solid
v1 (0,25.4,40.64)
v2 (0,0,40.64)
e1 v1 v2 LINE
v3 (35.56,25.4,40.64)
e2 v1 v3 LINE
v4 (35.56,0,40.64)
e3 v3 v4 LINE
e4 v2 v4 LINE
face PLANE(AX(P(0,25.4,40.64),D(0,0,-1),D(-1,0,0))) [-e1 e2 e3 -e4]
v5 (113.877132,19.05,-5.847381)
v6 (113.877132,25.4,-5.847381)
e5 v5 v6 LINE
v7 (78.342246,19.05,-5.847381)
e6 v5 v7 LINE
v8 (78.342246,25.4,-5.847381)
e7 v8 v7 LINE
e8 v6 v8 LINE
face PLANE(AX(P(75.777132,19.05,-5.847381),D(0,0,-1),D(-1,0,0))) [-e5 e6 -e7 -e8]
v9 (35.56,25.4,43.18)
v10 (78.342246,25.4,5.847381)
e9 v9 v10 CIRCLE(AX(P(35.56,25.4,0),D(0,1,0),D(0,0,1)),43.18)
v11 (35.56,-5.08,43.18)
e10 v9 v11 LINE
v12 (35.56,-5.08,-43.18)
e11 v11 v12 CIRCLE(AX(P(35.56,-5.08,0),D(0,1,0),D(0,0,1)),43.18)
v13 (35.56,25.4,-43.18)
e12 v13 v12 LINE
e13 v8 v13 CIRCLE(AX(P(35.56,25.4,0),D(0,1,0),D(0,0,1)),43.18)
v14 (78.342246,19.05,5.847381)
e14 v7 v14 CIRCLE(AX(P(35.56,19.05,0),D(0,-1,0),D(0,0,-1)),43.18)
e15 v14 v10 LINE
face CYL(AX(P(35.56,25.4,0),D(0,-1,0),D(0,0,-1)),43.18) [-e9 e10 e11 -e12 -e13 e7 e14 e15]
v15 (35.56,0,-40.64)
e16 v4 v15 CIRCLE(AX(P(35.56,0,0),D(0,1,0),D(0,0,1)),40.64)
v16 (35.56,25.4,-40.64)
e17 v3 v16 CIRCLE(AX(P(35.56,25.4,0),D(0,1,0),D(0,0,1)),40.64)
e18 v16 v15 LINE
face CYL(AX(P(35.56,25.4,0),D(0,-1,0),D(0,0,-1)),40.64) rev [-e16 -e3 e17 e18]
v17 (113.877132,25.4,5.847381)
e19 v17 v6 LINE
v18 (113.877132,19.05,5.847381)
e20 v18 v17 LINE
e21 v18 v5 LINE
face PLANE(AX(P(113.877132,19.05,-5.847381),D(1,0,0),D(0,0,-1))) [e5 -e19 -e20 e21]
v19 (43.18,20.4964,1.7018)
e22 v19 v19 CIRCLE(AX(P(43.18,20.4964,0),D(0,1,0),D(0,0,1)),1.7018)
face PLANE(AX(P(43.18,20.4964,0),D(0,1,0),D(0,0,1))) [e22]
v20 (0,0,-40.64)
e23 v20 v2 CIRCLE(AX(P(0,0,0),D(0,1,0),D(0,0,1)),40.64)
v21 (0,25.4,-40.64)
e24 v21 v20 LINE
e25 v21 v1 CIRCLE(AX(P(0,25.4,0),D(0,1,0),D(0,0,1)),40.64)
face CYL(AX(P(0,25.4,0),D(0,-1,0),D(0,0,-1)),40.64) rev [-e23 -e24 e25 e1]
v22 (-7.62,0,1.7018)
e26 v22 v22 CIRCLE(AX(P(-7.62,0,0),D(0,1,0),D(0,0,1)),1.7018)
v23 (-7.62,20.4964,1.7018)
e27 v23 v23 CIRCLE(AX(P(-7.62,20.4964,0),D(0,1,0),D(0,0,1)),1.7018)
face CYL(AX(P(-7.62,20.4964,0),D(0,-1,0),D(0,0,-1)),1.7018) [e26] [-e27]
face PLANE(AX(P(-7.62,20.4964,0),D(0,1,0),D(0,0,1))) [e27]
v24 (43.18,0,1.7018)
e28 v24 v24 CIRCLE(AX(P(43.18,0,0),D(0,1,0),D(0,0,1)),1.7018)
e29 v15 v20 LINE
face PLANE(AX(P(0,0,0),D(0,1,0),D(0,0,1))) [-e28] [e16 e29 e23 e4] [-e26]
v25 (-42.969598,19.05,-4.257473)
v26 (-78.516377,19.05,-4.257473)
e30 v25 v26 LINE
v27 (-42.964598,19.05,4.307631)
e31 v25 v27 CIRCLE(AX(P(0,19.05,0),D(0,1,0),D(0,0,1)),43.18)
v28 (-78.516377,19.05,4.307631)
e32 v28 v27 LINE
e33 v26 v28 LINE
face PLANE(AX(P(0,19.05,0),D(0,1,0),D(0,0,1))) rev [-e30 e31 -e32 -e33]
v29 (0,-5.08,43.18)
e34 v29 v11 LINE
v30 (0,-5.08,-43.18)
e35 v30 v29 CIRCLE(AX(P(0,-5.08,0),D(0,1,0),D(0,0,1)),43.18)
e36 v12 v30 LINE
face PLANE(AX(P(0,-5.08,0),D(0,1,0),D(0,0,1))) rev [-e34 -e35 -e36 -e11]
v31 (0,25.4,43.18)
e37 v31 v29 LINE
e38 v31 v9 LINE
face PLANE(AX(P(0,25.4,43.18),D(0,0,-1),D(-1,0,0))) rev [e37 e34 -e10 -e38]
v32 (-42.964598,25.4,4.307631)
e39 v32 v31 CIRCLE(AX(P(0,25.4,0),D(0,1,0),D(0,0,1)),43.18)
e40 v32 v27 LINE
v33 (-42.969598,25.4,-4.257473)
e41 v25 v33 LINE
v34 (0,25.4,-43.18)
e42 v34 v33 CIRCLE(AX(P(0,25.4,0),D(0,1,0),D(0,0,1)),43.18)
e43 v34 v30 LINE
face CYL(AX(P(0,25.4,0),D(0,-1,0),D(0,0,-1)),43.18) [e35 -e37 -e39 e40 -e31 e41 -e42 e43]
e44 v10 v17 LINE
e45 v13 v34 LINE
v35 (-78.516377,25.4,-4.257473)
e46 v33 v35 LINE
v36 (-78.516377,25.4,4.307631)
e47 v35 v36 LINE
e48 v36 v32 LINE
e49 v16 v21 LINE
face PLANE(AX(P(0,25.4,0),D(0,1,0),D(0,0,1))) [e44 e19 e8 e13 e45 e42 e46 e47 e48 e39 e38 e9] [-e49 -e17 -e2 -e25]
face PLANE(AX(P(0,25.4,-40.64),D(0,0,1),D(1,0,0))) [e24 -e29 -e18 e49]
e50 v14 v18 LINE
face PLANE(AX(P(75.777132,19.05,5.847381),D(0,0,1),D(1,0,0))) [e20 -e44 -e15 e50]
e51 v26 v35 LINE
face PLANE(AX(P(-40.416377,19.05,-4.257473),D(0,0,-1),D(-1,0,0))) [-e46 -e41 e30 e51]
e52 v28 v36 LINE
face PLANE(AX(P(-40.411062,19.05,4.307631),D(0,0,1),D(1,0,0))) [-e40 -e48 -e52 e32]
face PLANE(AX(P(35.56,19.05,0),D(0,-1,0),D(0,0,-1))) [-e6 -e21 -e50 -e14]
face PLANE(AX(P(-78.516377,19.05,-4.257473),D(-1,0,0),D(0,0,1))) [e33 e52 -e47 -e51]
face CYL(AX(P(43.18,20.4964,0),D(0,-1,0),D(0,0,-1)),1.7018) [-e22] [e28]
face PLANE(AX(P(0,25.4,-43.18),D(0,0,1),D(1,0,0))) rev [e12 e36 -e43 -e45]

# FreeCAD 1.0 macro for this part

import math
import FreeCAD as App
import Part
import Sketcher
from FreeCAD import Vector
Q = App.Units.Quantity

doc = App.newDocument("Part")
params = doc.addObject("Spreadsheet::Sheet", "Params")
for row, (alias, value) in enumerate([
    ("sketch1_radius", "1.7 in"),
    ("sketch1_radius2", "1.6 in"),
    ("sketch1_width", "1.4 in"),
    ("pad1_length", "1 in"),
    ("sketch2_radius", "1.7 in"),
    ("sketch2_width", "1.4 in"),
    ("pad2_length", "0.2 in"),
    ("sketch3_diameter", "0.134 in"),
    ("pad3_length", "20.4964 mm"),
    ("sketch4_radius", "1.6 in"),
    ("sketch4_width", "1.5 in"),
    ("pad4_length", "0.25 in"),
], start=1):
    params.set(f"A{row}", alias)
    params.set(f"B{row}", "=" + value)
    params.setAlias(f"B{row}", alias)

body = doc.addObject("PartDesign::Body", "Body")

# Sketch on XZ plane
sketch1 = body.newObject("Sketcher::SketchObject", "Sketch")
sketch1.AttachmentSupport = (doc.getObject("XZ_Plane"), [""])
sketch1.MapMode = "FlatFace"
sketch1.addGeometry(Part.LineSegment(Vector(36, -43, 0), Vector(0, -43, 0)), False)
sketch1.addGeometry(Part.ArcOfCircle(Part.Circle(Vector(0, 0, 0), Vector(0, 0, 1), 43), math.radians(90), math.radians(270)), False)
sketch1.addGeometry(Part.LineSegment(Vector(0, 43, 0), Vector(36, 43, 0)), False)
sketch1.addGeometry(Part.ArcOfCircle(Part.Circle(Vector(36, 0, 0), Vector(0, 0, 1), 43), math.radians(-90), math.radians(90)), False)
sketch1.addGeometry(Part.LineSegment(Vector(0, -41, 0), Vector(36, -41, 0)), False)
sketch1.addGeometry(Part.ArcOfCircle(Part.Circle(Vector(36, 0, 0), Vector(0, 0, 1), 41), math.radians(-90), math.radians(90)), False)
sketch1.addGeometry(Part.LineSegment(Vector(36, 41, 0), Vector(0, 41, 0)), False)
sketch1.addGeometry(Part.ArcOfCircle(Part.Circle(Vector(0, 0, 0), Vector(0, 0, 1), 41), math.radians(90), math.radians(270)), False)
sketch1.addConstraint(Sketcher.Constraint("Tangent", 0, 2, 1, 2))
sketch1.addConstraint(Sketcher.Constraint("Tangent", 1, 1, 2, 1))
sketch1.addConstraint(Sketcher.Constraint("Tangent", 2, 2, 3, 2))
sketch1.addConstraint(Sketcher.Constraint("Tangent", 3, 1, 0, 1))
sketch1.addConstraint(Sketcher.Constraint("Tangent", 4, 2, 5, 1))
sketch1.addConstraint(Sketcher.Constraint("Tangent", 5, 2, 6, 1))
sketch1.addConstraint(Sketcher.Constraint("Tangent", 6, 2, 7, 1))
sketch1.addConstraint(Sketcher.Constraint("Tangent", 7, 2, 4, 1))
sketch1.addConstraint(Sketcher.Constraint("Horizontal", 0))
sketch1.addConstraint(Sketcher.Constraint("Horizontal", 2))
sketch1.addConstraint(Sketcher.Constraint("Horizontal", 4))
sketch1.addConstraint(Sketcher.Constraint("Horizontal", 6))
sketch1.addConstraint(Sketcher.Constraint("Coincident", 1, 3, -1, 1))
sketch1.addConstraint(Sketcher.Constraint("Coincident", 7, 3, -1, 1))
sketch1.addConstraint(Sketcher.Constraint("Vertical", 5, 3, 2, 2))
sketch1.addConstraint(Sketcher.Constraint("Radius", 1, Q("1.7 in")))
sketch1.addConstraint(Sketcher.Constraint("Radius", 5, Q("1.6 in")))
sketch1.addConstraint(Sketcher.Constraint("DistanceX", 0, 2, 0, 1, Q("1.4 in")))
sketch1.setExpression("Constraints[15]", "Params.sketch1_radius")
sketch1.setExpression("Constraints[16]", "Params.sketch1_radius2")
sketch1.setExpression("Constraints[17]", "Params.sketch1_width")
pad1 = body.newObject("PartDesign::Pad", "Pad")
pad1.Profile = sketch1
pad1.setExpression("Length", "Params.pad1_length")
pad1.Reversed = True

# Sketch on XZ plane
sketch2 = body.newObject("Sketcher::SketchObject", "Sketch001")
sketch2.AttachmentSupport = (doc.getObject("XZ_Plane"), [""])
sketch2.MapMode = "FlatFace"
sketch2.AttachmentOffset = App.Placement(Vector(0, 0, 0.2 * 25.4), App.Rotation())
sketch2.addGeometry(Part.LineSegment(Vector(36, -43, 0), Vector(0, -43, 0)), False)
sketch2.addGeometry(Part.ArcOfCircle(Part.Circle(Vector(0, 0, 0), Vector(0, 0, 1), 43), math.radians(90), math.radians(270)), False)
sketch2.addGeometry(Part.LineSegment(Vector(0, 43, 0), Vector(36, 43, 0)), False)
sketch2.addGeometry(Part.ArcOfCircle(Part.Circle(Vector(36, 0, 0), Vector(0, 0, 1), 43), math.radians(-90), math.radians(90)), False)
sketch2.addConstraint(Sketcher.Constraint("Tangent", 0, 2, 1, 2))
sketch2.addConstraint(Sketcher.Constraint("Tangent", 1, 1, 2, 1))
sketch2.addConstraint(Sketcher.Constraint("Tangent", 2, 2, 3, 2))
sketch2.addConstraint(Sketcher.Constraint("Tangent", 3, 1, 0, 1))
sketch2.addConstraint(Sketcher.Constraint("Horizontal", 0))
sketch2.addConstraint(Sketcher.Constraint("Horizontal", 2))
sketch2.addConstraint(Sketcher.Constraint("Coincident", 1, 3, -1, 1))
sketch2.addConstraint(Sketcher.Constraint("Radius", 1, Q("1.7 in")))
sketch2.addConstraint(Sketcher.Constraint("DistanceX", 0, 2, 0, 1, Q("1.4 in")))
sketch2.setExpression("Constraints[7]", "Params.sketch2_radius")
sketch2.setExpression("Constraints[8]", "Params.sketch2_width")
pad2 = body.newObject("PartDesign::Pad", "Pad001")
pad2.Profile = sketch2
pad2.setExpression("Length", "Params.pad2_length")
pad2.Reversed = True

# Sketch on XZ plane
sketch3 = body.newObject("Sketcher::SketchObject", "Sketch002")
sketch3.AttachmentSupport = (doc.getObject("XZ_Plane"), [""])
sketch3.MapMode = "FlatFace"
sketch3.addGeometry(Part.Circle(Vector(43.2, 0, 0), Vector(0, 0, 1), 1.7), False)
sketch3.addGeometry(Part.Circle(Vector(-7.6, 0, 0), Vector(0, 0, 1), 1.7), False)
sketch3.addConstraint(Sketcher.Constraint("Equal", 0, 1))
sketch3.addConstraint(Sketcher.Constraint("PointOnObject", 0, 3, -1))
sketch3.addConstraint(Sketcher.Constraint("PointOnObject", 1, 3, -1))
sketch3.addConstraint(Sketcher.Constraint("Diameter", 0, Q("0.134 in")))
sketch3.addConstraint(Sketcher.Constraint("DistanceX", 1, 3, 0, 3, Q("2 in")))
sketch3.addConstraint(Sketcher.Constraint("DistanceX", -1, 1, 0, 3, Q("1.7 in")))
sketch3.setExpression("Constraints[3]", "Params.sketch3_diameter")
pad3 = body.newObject("PartDesign::Pad", "Pad002")
pad3.Profile = sketch3
pad3.setExpression("Length", "Params.pad3_length")
pad3.Reversed = True

# Sketch on XZ plane
sketch4 = body.newObject("Sketcher::SketchObject", "Sketch003")
sketch4.AttachmentSupport = (doc.getObject("XZ_Plane"), [""])
sketch4.MapMode = "FlatFace"
sketch4.AttachmentOffset = App.Placement(Vector(0, 0, -0.75 * 25.4), App.Rotation())
sketch4.addGeometry(Part.LineSegment(Vector(-40, -4, 0), Vector(-79, -4, 0)), False)
sketch4.addGeometry(Part.LineSegment(Vector(-79, -4, 0), Vector(-79, 4, 0)), False)
sketch4.addGeometry(Part.LineSegment(Vector(-79, 4, 0), Vector(-40, 4, 0)), False)
sketch4.addGeometry(Part.ArcOfCircle(Part.Circle(Vector(0, 0, 0), Vector(0, 0, 1), 41), math.radians(173.92), math.radians(186.01)), False)
sketch4.addGeometry(Part.LineSegment(Vector(114, -6, 0), Vector(76, -6, 0)), False)
sketch4.addGeometry(Part.ArcOfCircle(Part.Circle(Vector(36, 0, 0), Vector(0, 0, 1), 41), math.radians(-8.27), math.radians(8.27)), False)
sketch4.addGeometry(Part.LineSegment(Vector(76, 6, 0), Vector(114, 6, 0)), False)
sketch4.addGeometry(Part.LineSegment(Vector(114, 6, 0), Vector(114, -6, 0)), False)
sketch4.addConstraint(Sketcher.Constraint("Coincident", 0, 2, 1, 1))
sketch4.addConstraint(Sketcher.Constraint("Coincident", 1, 2, 2, 1))
sketch4.addConstraint(Sketcher.Constraint("Coincident", 2, 2, 3, 1))
sketch4.addConstraint(Sketcher.Constraint("Coincident", 3, 2, 0, 1))
sketch4.addConstraint(Sketcher.Constraint("Coincident", 4, 2, 5, 1))
sketch4.addConstraint(Sketcher.Constraint("Coincident", 5, 2, 6, 1))
sketch4.addConstraint(Sketcher.Constraint("Coincident", 6, 2, 7, 1))
sketch4.addConstraint(Sketcher.Constraint("Coincident", 7, 2, 4, 1))
sketch4.addConstraint(Sketcher.Constraint("Horizontal", 0))
sketch4.addConstraint(Sketcher.Constraint("Vertical", 1))
sketch4.addConstraint(Sketcher.Constraint("Horizontal", 2))
sketch4.addConstraint(Sketcher.Constraint("Horizontal", 4))
sketch4.addConstraint(Sketcher.Constraint("Horizontal", 6))
sketch4.addConstraint(Sketcher.Constraint("Vertical", 7))
sketch4.addConstraint(Sketcher.Constraint("Coincident", 3, 3, -1, 1))
sketch4.addConstraint(Sketcher.Constraint("Equal", 3, 5))
sketch4.addConstraint(Sketcher.Constraint("Symmetric", 4, 2, 5, 2, -1))
sketch4.addConstraint(Sketcher.Constraint("Equal", 0, 4))
sketch4.addConstraint(Sketcher.Constraint("Radius", 3, Q("1.6 in")))
sketch4.addConstraint(Sketcher.Constraint("DistanceX", 0, 2, 0, 1, Q("1.5 in")))
sketch4.addConstraint(Sketcher.Constraint("DistanceX", -1, 1, 5, 3, Q("1.4 in")))
sketch4.addConstraint(Sketcher.Constraint("DistanceX", 2, 1, 2, 2, 38.105315))
sketch4.addConstraint(Sketcher.Constraint("DistanceY", 1, 1, 1, 2, 8.565104))
sketch4.addConstraint(Sketcher.Constraint("DistanceY", 7, 2, 7, 1, 11.694762))
sketch4.setExpression("Constraints[18]", "Params.sketch4_radius")
sketch4.setExpression("Constraints[19]", "Params.sketch4_width")
pad4 = body.newObject("PartDesign::Pad", "Pad003")
pad4.Profile = sketch4
pad4.setExpression("Length", "Params.pad4_length")
pad4.Reversed = True

doc.recompute()
